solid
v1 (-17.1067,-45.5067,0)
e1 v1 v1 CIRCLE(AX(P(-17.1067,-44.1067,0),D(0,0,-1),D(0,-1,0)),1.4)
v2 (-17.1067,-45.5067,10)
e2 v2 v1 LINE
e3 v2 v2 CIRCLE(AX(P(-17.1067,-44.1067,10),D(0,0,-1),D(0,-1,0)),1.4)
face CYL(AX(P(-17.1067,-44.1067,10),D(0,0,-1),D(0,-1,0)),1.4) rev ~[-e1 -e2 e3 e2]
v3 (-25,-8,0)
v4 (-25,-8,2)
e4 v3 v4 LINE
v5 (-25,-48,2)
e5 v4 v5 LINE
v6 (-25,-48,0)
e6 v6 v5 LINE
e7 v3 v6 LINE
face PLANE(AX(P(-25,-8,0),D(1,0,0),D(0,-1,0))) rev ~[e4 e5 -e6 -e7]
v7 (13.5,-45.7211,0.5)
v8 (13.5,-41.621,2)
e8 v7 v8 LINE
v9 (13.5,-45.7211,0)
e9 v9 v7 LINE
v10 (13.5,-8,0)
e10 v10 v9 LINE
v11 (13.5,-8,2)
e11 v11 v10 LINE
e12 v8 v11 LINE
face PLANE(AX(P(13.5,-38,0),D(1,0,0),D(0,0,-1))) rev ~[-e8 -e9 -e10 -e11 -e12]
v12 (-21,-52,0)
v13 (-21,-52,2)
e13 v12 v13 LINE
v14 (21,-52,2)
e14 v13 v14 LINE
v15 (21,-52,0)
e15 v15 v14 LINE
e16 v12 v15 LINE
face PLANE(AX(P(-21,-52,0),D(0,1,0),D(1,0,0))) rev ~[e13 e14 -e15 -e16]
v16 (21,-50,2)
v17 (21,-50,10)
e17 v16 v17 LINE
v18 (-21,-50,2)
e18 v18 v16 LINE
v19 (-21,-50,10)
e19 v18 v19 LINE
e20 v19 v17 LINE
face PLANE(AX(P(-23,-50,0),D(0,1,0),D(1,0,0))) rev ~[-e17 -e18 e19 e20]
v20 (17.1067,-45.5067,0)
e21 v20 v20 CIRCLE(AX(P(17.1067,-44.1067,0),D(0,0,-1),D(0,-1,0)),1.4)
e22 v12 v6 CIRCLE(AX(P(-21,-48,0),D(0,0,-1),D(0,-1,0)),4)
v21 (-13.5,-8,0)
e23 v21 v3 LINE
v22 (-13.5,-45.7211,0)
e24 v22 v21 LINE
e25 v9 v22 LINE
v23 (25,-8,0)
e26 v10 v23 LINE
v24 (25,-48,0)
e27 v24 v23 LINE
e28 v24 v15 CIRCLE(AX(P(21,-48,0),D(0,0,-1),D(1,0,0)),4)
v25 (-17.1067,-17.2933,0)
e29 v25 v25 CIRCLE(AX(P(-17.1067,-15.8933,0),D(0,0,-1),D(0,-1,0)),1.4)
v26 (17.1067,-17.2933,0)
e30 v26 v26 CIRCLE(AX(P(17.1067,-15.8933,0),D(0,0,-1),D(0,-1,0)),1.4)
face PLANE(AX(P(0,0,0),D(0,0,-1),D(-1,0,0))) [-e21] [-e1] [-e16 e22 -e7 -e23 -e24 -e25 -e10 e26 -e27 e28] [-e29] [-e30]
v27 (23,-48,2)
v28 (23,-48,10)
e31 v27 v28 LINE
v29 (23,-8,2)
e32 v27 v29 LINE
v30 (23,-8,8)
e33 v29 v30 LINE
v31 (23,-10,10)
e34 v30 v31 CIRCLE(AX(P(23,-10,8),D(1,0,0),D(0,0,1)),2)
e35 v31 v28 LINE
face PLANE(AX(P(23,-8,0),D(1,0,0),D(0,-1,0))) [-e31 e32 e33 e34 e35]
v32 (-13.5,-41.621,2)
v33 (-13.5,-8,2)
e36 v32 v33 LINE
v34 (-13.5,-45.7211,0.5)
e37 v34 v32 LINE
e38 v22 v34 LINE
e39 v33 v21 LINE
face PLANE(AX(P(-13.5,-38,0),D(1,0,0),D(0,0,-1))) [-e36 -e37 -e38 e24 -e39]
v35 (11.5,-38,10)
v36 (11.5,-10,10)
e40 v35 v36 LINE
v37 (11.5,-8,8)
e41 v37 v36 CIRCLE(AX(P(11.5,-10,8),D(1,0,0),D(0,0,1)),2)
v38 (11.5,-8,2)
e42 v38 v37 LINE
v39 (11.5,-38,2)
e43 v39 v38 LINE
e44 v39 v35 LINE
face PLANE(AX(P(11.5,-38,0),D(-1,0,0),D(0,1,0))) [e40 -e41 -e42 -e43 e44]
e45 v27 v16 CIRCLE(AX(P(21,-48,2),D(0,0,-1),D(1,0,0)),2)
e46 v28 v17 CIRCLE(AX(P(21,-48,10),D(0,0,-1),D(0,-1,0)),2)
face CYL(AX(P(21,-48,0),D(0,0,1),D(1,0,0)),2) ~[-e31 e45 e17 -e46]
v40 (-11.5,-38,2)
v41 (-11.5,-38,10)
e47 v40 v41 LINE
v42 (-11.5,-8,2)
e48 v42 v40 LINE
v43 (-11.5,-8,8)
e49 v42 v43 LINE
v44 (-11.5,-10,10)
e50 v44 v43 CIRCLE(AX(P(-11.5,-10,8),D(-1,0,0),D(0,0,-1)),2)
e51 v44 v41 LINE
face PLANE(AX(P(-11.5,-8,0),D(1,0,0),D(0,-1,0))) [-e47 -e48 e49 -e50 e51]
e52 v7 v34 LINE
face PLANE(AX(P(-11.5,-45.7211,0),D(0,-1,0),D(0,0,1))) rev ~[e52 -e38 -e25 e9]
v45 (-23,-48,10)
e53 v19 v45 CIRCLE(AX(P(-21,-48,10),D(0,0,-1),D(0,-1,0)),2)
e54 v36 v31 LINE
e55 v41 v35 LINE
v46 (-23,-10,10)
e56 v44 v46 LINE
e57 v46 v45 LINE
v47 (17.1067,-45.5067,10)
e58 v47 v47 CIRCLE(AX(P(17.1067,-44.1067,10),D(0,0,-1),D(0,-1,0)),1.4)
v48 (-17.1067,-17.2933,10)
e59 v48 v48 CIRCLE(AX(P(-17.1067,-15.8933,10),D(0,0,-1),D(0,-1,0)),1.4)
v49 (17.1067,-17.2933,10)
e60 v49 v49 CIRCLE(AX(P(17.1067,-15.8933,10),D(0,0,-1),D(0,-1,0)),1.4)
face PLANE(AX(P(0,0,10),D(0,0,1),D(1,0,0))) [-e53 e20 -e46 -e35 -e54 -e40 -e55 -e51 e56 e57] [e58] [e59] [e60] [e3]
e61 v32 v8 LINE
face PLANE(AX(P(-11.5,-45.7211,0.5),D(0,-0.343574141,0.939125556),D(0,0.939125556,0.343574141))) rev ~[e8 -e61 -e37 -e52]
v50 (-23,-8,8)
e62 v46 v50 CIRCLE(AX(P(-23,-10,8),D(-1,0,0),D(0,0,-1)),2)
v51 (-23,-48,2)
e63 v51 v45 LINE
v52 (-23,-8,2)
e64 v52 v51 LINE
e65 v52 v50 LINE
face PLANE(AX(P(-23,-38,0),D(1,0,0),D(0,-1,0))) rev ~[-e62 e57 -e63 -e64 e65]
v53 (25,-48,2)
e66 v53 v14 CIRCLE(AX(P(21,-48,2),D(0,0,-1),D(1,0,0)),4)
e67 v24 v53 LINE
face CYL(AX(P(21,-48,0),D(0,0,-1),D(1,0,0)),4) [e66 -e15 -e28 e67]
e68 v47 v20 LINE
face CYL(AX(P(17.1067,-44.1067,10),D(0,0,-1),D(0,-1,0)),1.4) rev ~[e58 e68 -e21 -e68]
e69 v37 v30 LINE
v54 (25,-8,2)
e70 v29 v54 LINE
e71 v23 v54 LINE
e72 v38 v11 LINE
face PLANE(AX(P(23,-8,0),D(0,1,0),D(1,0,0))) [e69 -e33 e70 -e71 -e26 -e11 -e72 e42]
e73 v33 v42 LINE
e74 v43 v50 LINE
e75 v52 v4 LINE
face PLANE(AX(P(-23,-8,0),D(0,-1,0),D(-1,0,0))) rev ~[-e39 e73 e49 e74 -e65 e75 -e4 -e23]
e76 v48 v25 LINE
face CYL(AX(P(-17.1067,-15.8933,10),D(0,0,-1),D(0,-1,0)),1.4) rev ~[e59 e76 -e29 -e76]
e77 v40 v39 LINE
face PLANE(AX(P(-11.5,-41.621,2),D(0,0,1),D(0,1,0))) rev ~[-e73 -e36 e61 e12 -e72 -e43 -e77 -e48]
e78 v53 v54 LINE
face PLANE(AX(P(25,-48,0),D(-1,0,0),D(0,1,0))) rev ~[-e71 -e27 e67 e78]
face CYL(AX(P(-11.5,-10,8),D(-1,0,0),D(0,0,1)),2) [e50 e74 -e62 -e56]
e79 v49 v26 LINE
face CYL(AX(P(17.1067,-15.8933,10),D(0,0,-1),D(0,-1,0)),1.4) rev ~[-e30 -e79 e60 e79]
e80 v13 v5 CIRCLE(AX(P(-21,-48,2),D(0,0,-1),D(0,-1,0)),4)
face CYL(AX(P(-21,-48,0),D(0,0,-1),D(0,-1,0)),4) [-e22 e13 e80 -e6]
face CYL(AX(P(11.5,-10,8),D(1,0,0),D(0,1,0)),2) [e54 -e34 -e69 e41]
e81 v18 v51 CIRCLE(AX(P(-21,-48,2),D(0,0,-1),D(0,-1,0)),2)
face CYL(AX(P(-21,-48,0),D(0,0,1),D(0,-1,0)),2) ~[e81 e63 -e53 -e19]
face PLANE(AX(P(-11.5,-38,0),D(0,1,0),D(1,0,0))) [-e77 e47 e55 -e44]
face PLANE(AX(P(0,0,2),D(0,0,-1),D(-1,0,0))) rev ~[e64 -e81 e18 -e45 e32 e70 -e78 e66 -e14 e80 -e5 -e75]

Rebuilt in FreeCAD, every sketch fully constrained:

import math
import FreeCAD as App
import Part
import Sketcher
from FreeCAD import Vector
Q = App.Units.Quantity


def edges_at(feature, points):
    """Names of the edges that pass closest to the given points."""
    edges = feature.Shape.Edges
    near = lambda p: min(range(len(edges)), key=lambda i: edges[i].distToShape(Part.Vertex(*p))[0])
    return sorted({f"Edge{near(p) + 1}" for p in points})

doc = App.newDocument("Part")
params = doc.addObject("Spreadsheet::Sheet", "Params")
for row, (alias, value) in enumerate([
    ("sketch1_width", "23 mm"),
    ("sketch1_width2", "46 mm"),
    ("sketch1_height", "30 mm"),
    ("pad1_length", "10 mm"),
    ("sketch2_height", "2 mm"),
    ("sketch2_height2", "0.5 mm"),
    ("pocket1_length", "25 mm"),
    ("pocket1_length2", "2 mm"),
    ("sketch3_diameter", "3 mm"),
    ("fillet_radius", "2 mm"),
    ("sketch4_radius", "2 mm"),
    ("sketch4_width", "2 mm"),
    ("sketch4_width2", "42 mm"),
    ("sketch4_height", "40 mm"),
    ("pad2_length", "2 mm"),
    ("sketch5_diameter", "2.8 mm"),
    ("hole_diameter", "2.8 mm"),
    ("hole_depth", "12 mm"),
], start=1):
    params.set(f"A{row}", alias)
    params.set(f"B{row}", "=" + value)
    params.setAlias(f"B{row}", alias)

body = doc.addObject("PartDesign::Body", "Body")

# Sketch on XY plane
sketch1 = body.newObject("Sketcher::SketchObject", "Sketch")
sketch1.AttachmentSupport = (doc.getObject("XY_Plane"), [""])
sketch1.MapMode = "FlatFace"
sketch1.addGeometry([
    Part.LineSegment(Vector(23, -8, 0), Vector(11.5, -8, 0)),  # 0
    Part.LineSegment(Vector(11.5, -8, 0), Vector(11.5, -38, 0)),  # 1
    Part.LineSegment(Vector(11.5, -38, 0), Vector(-11.5, -38, 0)),  # 2
    Part.LineSegment(Vector(-11.5, -38, 0), Vector(-11.5, -8, 0)),  # 3
    Part.LineSegment(Vector(-11.5, -8, 0), Vector(-23, -8, 0)),  # 4
    Part.LineSegment(Vector(-23, -8, 0), Vector(-23, -50, 0)),  # 5
    Part.LineSegment(Vector(-23, -50, 0), Vector(23, -50, 0)),  # 6
    Part.LineSegment(Vector(23, -50, 0), Vector(23, -8, 0)),  # 7
], False)
sketch1.addConstraint([
    Sketcher.Constraint("Coincident", 0, 2, 1, 1),
    Sketcher.Constraint("Coincident", 1, 2, 2, 1),
    Sketcher.Constraint("Coincident", 2, 2, 3, 1),
    Sketcher.Constraint("Coincident", 3, 2, 4, 1),
    Sketcher.Constraint("Coincident", 4, 2, 5, 1),
    Sketcher.Constraint("Coincident", 5, 2, 6, 1),
    Sketcher.Constraint("Coincident", 6, 2, 7, 1),
    Sketcher.Constraint("Coincident", 7, 2, 0, 1),
    Sketcher.Constraint("Horizontal", 0),
    Sketcher.Constraint("Vertical", 1),
    Sketcher.Constraint("Horizontal", 2),
    Sketcher.Constraint("Vertical", 3),
    Sketcher.Constraint("Horizontal", 4),
    Sketcher.Constraint("Vertical", 5),
    Sketcher.Constraint("Horizontal", 6),
    Sketcher.Constraint("Vertical", 7),
    Sketcher.Constraint("Symmetric", 0, 2, 3, 2, -2),
    Sketcher.Constraint("Equal", 0, 4),
    Sketcher.Constraint("DistanceX", 2, 2, 2, 1, Q("23 mm")),
    Sketcher.Constraint("DistanceX", 6, 1, 6, 2, Q("46 mm")),
    Sketcher.Constraint("DistanceY", 1, 2, 1, 1, Q("30 mm")),
    Sketcher.Constraint("DistanceY", 5, 2, 2, 2, Q("12 mm")),
    Sketcher.Constraint("DistanceY", 0, 2, -1, 1, Q("8 mm")),
])
sketch1.setExpression("Constraints[18]", "Params.sketch1_width")
sketch1.setExpression("Constraints[19]", "Params.sketch1_width2")
sketch1.setExpression("Constraints[20]", "Params.sketch1_height")
pad1 = body.newObject("PartDesign::Pad", "Pad")
pad1.Profile = sketch1
pad1.setExpression("Length", "Params.pad1_length")

# Sketch on YZ plane
sketch2 = body.newObject("Sketcher::SketchObject", "Sketch001")
sketch2.AttachmentSupport = (doc.getObject("YZ_Plane"), [""])
sketch2.MapMode = "FlatFace"
sketch2.AttachmentOffset = App.Placement(Vector(0, 0, -11.5), App.Rotation())
sketch2.addGeometry([
    Part.LineSegment(Vector(-45.7211, 0, 0), Vector(-8, 0, 0)),  # 0
    Part.LineSegment(Vector(-8, 0, 0), Vector(-8, 2, 0)),  # 1
    Part.LineSegment(Vector(-8, 2, 0), Vector(-41.621, 2, 0)),  # 2
    Part.LineSegment(Vector(-41.621, 2, 0), Vector(-45.7211, 0.5, 0)),  # 3
    Part.LineSegment(Vector(-45.7211, 0.5, 0), Vector(-45.7211, 0, 0)),  # 4
], False)
sketch2.addConstraint([
    Sketcher.Constraint("Coincident", 0, 2, 1, 1),
    Sketcher.Constraint("Coincident", 1, 2, 2, 1),
    Sketcher.Constraint("Coincident", 2, 2, 3, 1),
    Sketcher.Constraint("Coincident", 3, 2, 4, 1),
    Sketcher.Constraint("Coincident", 4, 2, 0, 1),
    Sketcher.Constraint("Horizontal", 0),
    Sketcher.Constraint("Vertical", 1),
    Sketcher.Constraint("Horizontal", 2),
    Sketcher.Constraint("Vertical", 4),
    Sketcher.Constraint("PointOnObject", 0, 2, -1),
    Sketcher.Constraint("DistanceY", 1, 1, 1, 2, Q("2 mm")),
    Sketcher.Constraint("DistanceY", 4, 2, 4, 1, Q("0.5 mm")),
    Sketcher.Constraint("DistanceX", 0, 2, -1, 1, Q("8 mm")),
    Sketcher.Constraint("DistanceX", 3, 2, 2, 2, Q("4.1 mm")),
    Sketcher.Constraint("DistanceX", 0, 1, 0, 2, Q("37.721 mm")),
])
sketch2.setExpression("Constraints[10]", "Params.sketch2_height")
sketch2.setExpression("Constraints[11]", "Params.sketch2_height2")
pocket1 = body.newObject("PartDesign::Pocket", "Pocket")
pocket1.Profile = sketch2
pocket1.Type = "TwoLengths"
pocket1.setExpression("Length", "Params.pocket1_length")
pocket1.setExpression("Length2", "Params.pocket1_length2")
pocket1.Reversed = True

# Sketch on YZ plane
sketch3 = body.newObject("Sketcher::SketchObject", "Sketch002")
sketch3.AttachmentSupport = (doc.getObject("YZ_Plane"), [""])
sketch3.MapMode = "FlatFace"
sketch3.AttachmentOffset = App.Placement(Vector(0, 0, -23), App.Rotation())
sketch3.addGeometry(Part.Circle(Vector(6.1881, 6.7241, 0), Vector(0, 0, 1), 1.5), False)
sketch3.addConstraint([
    Sketcher.Constraint("Diameter", 0, Q("3 mm")),
    Sketcher.Constraint("DistanceX", -1, 1, 0, 3, Q("6.188 mm")),
    Sketcher.Constraint("DistanceY", -1, 1, 0, 3, Q("6.724 mm")),
])
sketch3.setExpression("Constraints[0]", "Params.sketch3_diameter")
pocket2 = body.newObject("PartDesign::Pocket", "Pocket001")
pocket2.Profile = sketch3
pocket2.Type = "ThroughAll"
pocket2.Reversed = True
doc.recompute()

fillet = body.newObject("PartDesign::Fillet", "Fillet")
fillet.Base = (pocket2, edges_at(pocket2, [
    (17.25, -8, 10),
    (-17.25, -8, 10),
    (-23, -50, 5),
    (23, -50, 5),
]))
fillet.setExpression("Radius", "Params.fillet_radius")

# Sketch on XY plane
sketch4 = body.newObject("Sketcher::SketchObject", "Sketch003")
sketch4.AttachmentSupport = (doc.getObject("XY_Plane"), [""])
sketch4.MapMode = "FlatFace"
sketch4.addGeometry([
    Part.ArcOfCircle(Part.Circle(Vector(21, -48, 0), Vector(0, 0, 1), 2), math.radians(-90), math.radians(0)),  # 0
    Part.LineSegment(Vector(23, -48, 0), Vector(23, -8, 0)),  # 1
    Part.LineSegment(Vector(23, -8, 0), Vector(25, -8, 0)),  # 2
    Part.LineSegment(Vector(25, -8, 0), Vector(25, -48, 0)),  # 3
    Part.ArcOfCircle(Part.Circle(Vector(21, -48, 0), Vector(0, 0, 1), 4), math.radians(-90), math.radians(0)),  # 4
    Part.LineSegment(Vector(21, -52, 0), Vector(-21, -52, 0)),  # 5
    Part.ArcOfCircle(Part.Circle(Vector(-21, -48, 0), Vector(0, 0, 1), 4), math.radians(180), math.radians(270)),  # 6
    Part.LineSegment(Vector(-25, -48, 0), Vector(-25, -8, 0)),  # 7
    Part.LineSegment(Vector(-25, -8, 0), Vector(-23, -8, 0)),  # 8
    Part.LineSegment(Vector(-23, -8, 0), Vector(-23, -48, 0)),  # 9
    Part.ArcOfCircle(Part.Circle(Vector(-21, -48, 0), Vector(0, 0, 1), 2), math.radians(180), math.radians(270)),  # 10
    Part.LineSegment(Vector(-21, -50, 0), Vector(21, -50, 0)),  # 11
], False)
sketch4.addConstraint([
    Sketcher.Constraint("Tangent", 0, 2, 1, 1),
    Sketcher.Constraint("Coincident", 1, 2, 2, 1),
    Sketcher.Constraint("Coincident", 2, 2, 3, 1),
    Sketcher.Constraint("Tangent", 3, 2, 4, 2),
    Sketcher.Constraint("Tangent", 4, 1, 5, 1),
    Sketcher.Constraint("Tangent", 5, 2, 6, 2),
    Sketcher.Constraint("Tangent", 6, 1, 7, 1),
    Sketcher.Constraint("Coincident", 7, 2, 8, 1),
    Sketcher.Constraint("Coincident", 8, 2, 9, 1),
    Sketcher.Constraint("Tangent", 9, 2, 10, 1),
    Sketcher.Constraint("Tangent", 10, 2, 11, 1),
    Sketcher.Constraint("Tangent", 11, 2, 0, 1),
    Sketcher.Constraint("Vertical", 1),
    Sketcher.Constraint("Horizontal", 2),
    Sketcher.Constraint("Vertical", 3),
    Sketcher.Constraint("Horizontal", 5),
    Sketcher.Constraint("Vertical", 7),
    Sketcher.Constraint("Horizontal", 8),
    Sketcher.Constraint("Vertical", 9),
    Sketcher.Constraint("Horizontal", 11),
    Sketcher.Constraint("Coincident", 4, 3, 0, 3),
    Sketcher.Constraint("Coincident", 10, 3, 6, 3),
    Sketcher.Constraint("Equal", 4, 6),
    Sketcher.Constraint("Symmetric", 2, 2, 7, 2, -2),
    Sketcher.Constraint("Radius", 0, Q("2 mm")),
    Sketcher.Constraint("DistanceX", 2, 1, 2, 2, Q("2 mm")),
    Sketcher.Constraint("DistanceX", 5, 2, 5, 1, Q("42 mm")),
    Sketcher.Constraint("DistanceY", 1, 1, 1, 2, Q("40 mm")),
    Sketcher.Constraint("DistanceY", 0, 3, -1, 1, Q("48 mm")),
])
sketch4.setExpression("Constraints[24]", "Params.sketch4_radius")
sketch4.setExpression("Constraints[25]", "Params.sketch4_width")
sketch4.setExpression("Constraints[26]", "Params.sketch4_width2")
sketch4.setExpression("Constraints[27]", "Params.sketch4_height")
pad2 = body.newObject("PartDesign::Pad", "Pad001")
pad2.Profile = sketch4
pad2.setExpression("Length", "Params.pad2_length")

# Sketch on XY plane
sketch5 = body.newObject("Sketcher::SketchObject", "Sketch004")
sketch5.AttachmentSupport = (doc.getObject("XY_Plane"), [""])
sketch5.MapMode = "FlatFace"
sketch5.AttachmentOffset = App.Placement(Vector(0, 0, 10), App.Rotation())
sketch5.addGeometry([
    Part.Circle(Vector(-17.1067, -44.1067, 0), Vector(0, 0, 1), 1.4),
    Part.Circle(Vector(17.1067, -44.1067, 0), Vector(0, 0, 1), 1.4),
    Part.Circle(Vector(17.1067, -15.8933, 0), Vector(0, 0, 1), 1.4),
    Part.Circle(Vector(-17.1067, -15.8933, 0), Vector(0, 0, 1), 1.4),
], False)
sketch5.addConstraint([
    Sketcher.Constraint("Equal", 0, 1),
    Sketcher.Constraint("Equal", 1, 2),
    Sketcher.Constraint("Equal", 2, 3),
    Sketcher.Constraint("Symmetric", 0, 3, 1, 3, -2),
    Sketcher.Constraint("Symmetric", 2, 3, 3, 3, -2),
    Sketcher.Constraint("Vertical", 1, 3, 2, 3),
    Sketcher.Constraint("Diameter", 0, Q("2.8 mm")),
    Sketcher.Constraint("DistanceX", 0, 3, -1, 1, Q("17.1067 mm")),
    Sketcher.Constraint("DistanceY", 0, 3, -1, 1, Q("44.1067 mm")),
    Sketcher.Constraint("DistanceY", 2, 3, -1, 1, Q("15.8933 mm")),
])
sketch5.setExpression("Constraints[6]", "Params.sketch5_diameter")
doc.recompute()
hole = body.newObject("PartDesign::Hole", "Hole")
hole.Profile = sketch5
hole.ThreadType = "None"
hole.setExpression("Diameter", "Params.hole_diameter")
hole.DepthType = "Dimension"
hole.setExpression("Depth", "Params.hole_depth")
hole.DrillPoint = "Angled"
hole.DrillPointAngle = 118

doc.recompute()
